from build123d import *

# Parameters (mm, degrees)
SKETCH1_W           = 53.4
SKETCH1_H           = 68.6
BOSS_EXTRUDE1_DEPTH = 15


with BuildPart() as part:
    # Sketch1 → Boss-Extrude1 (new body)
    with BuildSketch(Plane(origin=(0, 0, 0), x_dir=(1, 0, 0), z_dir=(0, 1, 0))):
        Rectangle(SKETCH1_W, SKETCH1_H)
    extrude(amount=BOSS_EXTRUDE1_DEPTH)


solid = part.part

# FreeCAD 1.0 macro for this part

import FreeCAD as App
import Part
import Sketcher

V = App.Vector
Q = App.Units.Quantity


def add_polygon(sketch, points):
    """Adds a closed chain of lines whose ends are joined by coincident constraints."""
    first, n = sketch.GeometryCount, len(points)
    for a, b in zip(points, points[1:] + points[:1]):
        sketch.addGeometry(Part.LineSegment(App.Vector(*a, 0), App.Vector(*b, 0)), False)
    for i in range(n):
        sketch.addConstraint(Sketcher.Constraint("Coincident", first + i, 2, first + (i + 1) % n, 1))

doc = App.newDocument("Part")
body = doc.addObject("PartDesign::Body", "Body")

sketch1 = doc.addObject("Sketcher::SketchObject", "Sketch")
body.addObject(sketch1)
sketch1.AttachmentSupport = (doc.XZ_Plane, [""])
sketch1.MapMode = "FlatFace"
add_polygon(sketch1, [(-27, -34), (-27, 34), (27, 34), (27, -34)])
sketch1.addConstraint(Sketcher.Constraint("Vertical", 0))
sketch1.addConstraint(Sketcher.Constraint("Horizontal", 1))
sketch1.addConstraint(Sketcher.Constraint("Vertical", 2))
sketch1.addConstraint(Sketcher.Constraint("Horizontal", 3))
sketch1.addConstraint(Sketcher.Constraint("Symmetric", 0, 2, 2, 2, -1, 1))
sketch1.addConstraint(Sketcher.Constraint("DistanceX", 1, 1, 1, 2, Q("53.4 mm")))
sketch1.addConstraint(Sketcher.Constraint("DistanceY", 0, 1, 0, 2, Q("68.6 mm")))
pad1 = doc.addObject("PartDesign::Pad", "Pad")
body.addObject(pad1)
pad1.Profile = sketch1
pad1.Length = 15
pad1.Reversed = True

doc.recompute()
